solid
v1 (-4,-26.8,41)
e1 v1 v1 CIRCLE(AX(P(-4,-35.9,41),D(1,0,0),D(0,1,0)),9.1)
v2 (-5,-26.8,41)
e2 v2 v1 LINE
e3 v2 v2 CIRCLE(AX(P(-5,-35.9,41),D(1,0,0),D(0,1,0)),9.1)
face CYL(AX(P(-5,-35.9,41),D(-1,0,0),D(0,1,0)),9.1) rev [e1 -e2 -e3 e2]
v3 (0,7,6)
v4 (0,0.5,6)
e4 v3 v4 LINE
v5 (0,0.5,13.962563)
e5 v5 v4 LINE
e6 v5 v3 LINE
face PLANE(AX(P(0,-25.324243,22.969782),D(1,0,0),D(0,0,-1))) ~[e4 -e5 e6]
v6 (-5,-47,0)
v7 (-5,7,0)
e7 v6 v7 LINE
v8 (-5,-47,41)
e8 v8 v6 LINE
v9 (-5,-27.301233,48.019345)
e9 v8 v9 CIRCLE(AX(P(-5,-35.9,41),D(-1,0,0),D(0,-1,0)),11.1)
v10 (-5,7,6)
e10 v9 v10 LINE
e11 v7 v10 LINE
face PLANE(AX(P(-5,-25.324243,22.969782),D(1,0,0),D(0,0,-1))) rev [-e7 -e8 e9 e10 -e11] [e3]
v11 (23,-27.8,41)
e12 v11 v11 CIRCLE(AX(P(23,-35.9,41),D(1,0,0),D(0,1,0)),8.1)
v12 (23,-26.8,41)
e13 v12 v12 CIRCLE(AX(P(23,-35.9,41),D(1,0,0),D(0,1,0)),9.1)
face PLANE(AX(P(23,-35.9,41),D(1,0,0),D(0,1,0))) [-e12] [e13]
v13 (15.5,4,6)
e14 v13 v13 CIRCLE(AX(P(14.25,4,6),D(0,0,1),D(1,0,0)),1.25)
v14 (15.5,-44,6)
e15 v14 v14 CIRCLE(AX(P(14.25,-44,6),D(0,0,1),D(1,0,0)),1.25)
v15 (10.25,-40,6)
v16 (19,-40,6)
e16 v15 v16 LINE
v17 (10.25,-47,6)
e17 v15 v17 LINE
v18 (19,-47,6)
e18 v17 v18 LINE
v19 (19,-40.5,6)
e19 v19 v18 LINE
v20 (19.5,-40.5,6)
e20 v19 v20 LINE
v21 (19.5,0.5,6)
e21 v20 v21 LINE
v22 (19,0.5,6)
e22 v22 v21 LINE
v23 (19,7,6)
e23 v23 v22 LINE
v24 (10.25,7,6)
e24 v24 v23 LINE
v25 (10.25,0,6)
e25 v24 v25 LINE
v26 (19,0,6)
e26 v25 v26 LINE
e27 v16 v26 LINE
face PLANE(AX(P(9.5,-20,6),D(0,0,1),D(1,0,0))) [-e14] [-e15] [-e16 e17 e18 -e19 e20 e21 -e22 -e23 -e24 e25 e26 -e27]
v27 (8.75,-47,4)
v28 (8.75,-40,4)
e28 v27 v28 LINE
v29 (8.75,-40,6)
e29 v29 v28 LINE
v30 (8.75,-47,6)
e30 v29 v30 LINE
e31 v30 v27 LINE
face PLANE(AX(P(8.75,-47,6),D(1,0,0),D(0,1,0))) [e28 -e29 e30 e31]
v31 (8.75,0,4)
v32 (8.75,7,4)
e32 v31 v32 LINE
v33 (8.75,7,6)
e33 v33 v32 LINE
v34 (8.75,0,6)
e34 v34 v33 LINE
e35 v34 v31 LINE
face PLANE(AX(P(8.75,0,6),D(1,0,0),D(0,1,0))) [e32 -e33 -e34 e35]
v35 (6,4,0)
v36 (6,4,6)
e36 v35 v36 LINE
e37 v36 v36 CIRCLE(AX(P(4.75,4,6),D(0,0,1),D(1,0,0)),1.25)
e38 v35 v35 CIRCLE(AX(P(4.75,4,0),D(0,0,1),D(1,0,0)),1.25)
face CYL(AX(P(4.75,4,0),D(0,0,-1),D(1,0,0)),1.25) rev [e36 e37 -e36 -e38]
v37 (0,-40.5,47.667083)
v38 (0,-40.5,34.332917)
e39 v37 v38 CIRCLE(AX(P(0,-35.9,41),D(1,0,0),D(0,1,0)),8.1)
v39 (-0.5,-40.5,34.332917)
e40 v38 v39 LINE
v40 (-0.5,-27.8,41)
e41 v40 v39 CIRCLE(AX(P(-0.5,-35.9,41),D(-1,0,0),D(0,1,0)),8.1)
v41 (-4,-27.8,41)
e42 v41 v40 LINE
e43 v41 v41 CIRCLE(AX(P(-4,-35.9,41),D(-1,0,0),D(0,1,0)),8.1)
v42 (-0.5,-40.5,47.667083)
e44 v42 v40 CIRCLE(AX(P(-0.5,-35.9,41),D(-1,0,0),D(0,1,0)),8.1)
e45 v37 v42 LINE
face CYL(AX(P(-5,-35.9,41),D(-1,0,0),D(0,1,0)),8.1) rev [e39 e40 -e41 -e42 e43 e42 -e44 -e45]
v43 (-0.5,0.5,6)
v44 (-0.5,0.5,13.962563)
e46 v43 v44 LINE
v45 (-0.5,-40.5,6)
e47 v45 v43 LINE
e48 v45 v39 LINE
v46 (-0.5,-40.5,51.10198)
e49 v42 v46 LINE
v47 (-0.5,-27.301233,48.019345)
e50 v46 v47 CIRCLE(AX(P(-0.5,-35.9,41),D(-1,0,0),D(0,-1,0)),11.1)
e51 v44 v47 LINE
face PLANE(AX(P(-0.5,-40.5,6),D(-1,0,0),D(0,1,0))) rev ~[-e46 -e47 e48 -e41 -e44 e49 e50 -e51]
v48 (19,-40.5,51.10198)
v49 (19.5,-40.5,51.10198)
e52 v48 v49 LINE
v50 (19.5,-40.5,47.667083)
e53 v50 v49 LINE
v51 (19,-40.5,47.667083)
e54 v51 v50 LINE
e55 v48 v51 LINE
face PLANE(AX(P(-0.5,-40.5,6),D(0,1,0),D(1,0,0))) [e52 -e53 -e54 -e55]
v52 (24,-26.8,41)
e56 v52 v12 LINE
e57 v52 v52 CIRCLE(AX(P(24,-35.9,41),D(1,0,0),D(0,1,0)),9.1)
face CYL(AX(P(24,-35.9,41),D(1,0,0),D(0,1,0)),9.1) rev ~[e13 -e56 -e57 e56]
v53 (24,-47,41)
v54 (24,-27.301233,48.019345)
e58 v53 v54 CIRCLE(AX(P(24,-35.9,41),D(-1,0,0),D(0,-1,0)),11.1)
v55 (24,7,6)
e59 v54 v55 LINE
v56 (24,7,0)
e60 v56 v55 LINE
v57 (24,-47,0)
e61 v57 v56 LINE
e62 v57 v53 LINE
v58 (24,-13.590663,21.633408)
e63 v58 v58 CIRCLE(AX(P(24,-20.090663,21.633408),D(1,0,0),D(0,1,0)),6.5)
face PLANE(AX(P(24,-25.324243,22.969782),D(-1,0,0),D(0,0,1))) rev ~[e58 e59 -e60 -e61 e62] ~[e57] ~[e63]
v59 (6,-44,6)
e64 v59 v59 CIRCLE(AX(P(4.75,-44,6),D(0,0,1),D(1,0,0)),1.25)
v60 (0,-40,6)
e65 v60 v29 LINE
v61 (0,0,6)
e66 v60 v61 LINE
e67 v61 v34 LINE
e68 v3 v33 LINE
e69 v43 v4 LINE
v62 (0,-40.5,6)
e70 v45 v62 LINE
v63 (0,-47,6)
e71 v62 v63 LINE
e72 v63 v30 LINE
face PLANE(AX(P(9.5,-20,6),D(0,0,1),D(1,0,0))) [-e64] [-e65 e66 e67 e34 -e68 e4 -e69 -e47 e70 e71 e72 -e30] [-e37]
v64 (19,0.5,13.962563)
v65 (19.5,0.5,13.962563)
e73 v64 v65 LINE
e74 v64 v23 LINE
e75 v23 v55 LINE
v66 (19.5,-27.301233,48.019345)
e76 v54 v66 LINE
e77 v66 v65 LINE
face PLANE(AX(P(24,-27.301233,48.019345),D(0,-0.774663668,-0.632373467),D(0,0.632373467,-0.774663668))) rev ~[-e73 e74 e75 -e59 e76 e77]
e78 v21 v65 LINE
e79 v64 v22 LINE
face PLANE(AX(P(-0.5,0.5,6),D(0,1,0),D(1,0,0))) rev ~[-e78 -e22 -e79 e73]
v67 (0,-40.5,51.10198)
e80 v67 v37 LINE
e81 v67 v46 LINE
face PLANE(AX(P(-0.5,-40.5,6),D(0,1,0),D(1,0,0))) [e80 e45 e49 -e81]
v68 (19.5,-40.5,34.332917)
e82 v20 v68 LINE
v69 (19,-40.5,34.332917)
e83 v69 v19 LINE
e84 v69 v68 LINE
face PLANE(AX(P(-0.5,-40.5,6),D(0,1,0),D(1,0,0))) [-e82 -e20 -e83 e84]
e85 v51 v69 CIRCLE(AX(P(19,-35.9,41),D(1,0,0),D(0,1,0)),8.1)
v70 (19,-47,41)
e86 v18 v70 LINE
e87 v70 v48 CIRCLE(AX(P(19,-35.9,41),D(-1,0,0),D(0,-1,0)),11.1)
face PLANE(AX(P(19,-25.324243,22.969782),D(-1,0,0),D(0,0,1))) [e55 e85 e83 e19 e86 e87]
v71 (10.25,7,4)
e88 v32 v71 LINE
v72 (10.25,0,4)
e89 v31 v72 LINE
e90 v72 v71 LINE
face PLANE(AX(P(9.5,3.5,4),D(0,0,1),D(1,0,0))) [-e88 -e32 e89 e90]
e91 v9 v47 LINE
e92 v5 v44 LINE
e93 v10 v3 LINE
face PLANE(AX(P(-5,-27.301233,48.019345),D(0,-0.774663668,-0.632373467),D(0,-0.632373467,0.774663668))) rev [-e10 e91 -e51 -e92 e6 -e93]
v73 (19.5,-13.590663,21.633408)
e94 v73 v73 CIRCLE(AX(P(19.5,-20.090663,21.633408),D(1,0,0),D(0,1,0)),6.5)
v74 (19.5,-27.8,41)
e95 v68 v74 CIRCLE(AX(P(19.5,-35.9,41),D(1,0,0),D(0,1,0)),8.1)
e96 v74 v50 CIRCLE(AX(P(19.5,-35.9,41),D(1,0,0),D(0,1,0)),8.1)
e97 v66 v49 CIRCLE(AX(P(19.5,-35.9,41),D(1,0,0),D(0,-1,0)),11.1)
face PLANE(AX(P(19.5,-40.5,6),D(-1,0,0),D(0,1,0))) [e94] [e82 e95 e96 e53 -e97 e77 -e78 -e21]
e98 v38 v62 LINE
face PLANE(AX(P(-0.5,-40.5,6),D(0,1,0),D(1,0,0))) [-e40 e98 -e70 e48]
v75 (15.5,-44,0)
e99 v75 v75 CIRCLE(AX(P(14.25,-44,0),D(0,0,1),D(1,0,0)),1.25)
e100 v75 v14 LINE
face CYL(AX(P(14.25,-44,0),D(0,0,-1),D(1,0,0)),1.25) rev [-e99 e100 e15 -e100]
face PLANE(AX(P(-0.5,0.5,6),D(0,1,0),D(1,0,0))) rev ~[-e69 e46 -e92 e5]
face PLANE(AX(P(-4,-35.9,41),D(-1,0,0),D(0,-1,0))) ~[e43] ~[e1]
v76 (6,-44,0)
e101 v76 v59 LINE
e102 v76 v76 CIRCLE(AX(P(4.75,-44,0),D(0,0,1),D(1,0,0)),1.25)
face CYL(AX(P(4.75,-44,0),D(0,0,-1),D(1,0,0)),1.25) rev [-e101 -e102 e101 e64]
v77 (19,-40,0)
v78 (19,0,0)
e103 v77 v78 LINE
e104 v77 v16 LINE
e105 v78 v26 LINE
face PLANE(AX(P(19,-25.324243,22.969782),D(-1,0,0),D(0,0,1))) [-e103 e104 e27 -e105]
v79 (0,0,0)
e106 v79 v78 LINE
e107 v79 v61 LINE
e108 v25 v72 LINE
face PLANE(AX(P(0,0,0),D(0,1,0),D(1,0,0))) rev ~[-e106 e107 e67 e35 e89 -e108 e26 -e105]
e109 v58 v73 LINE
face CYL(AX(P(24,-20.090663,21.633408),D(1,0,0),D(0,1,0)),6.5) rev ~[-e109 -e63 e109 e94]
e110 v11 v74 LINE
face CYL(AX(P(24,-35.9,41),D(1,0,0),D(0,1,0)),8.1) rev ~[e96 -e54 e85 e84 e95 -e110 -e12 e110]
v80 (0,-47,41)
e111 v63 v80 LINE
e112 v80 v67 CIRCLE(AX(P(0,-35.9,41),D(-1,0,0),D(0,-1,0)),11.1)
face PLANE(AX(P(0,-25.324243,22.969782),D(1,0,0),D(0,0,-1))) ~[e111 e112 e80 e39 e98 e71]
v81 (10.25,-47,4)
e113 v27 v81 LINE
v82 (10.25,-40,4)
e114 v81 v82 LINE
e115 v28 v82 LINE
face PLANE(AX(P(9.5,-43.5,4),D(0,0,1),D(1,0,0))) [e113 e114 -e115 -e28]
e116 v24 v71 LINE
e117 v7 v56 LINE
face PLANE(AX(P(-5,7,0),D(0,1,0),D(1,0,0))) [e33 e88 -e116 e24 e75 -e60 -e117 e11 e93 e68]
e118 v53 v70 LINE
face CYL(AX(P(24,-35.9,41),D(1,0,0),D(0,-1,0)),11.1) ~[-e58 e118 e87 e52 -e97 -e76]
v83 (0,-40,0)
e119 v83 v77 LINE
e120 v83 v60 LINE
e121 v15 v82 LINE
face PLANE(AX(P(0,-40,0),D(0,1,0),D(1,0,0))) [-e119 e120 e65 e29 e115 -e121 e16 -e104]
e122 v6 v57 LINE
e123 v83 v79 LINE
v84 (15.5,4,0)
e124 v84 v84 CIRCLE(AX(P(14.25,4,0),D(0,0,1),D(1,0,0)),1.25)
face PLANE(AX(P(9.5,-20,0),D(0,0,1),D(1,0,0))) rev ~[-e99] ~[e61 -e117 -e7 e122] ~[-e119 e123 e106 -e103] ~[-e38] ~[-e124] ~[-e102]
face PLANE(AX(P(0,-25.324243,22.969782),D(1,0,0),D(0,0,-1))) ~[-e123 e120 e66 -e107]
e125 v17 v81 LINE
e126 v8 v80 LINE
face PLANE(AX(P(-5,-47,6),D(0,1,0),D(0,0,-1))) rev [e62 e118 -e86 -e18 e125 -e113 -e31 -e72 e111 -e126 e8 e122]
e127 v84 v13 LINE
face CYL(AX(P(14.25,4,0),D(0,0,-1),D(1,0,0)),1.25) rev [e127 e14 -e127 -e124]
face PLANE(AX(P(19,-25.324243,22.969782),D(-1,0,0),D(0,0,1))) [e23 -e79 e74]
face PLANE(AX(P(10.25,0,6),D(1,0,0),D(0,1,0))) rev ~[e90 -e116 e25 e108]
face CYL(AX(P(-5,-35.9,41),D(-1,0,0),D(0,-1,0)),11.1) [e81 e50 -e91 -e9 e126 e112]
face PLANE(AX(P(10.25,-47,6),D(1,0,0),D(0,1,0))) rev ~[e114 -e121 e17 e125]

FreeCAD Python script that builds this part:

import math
import FreeCAD as App
import Part
import Sketcher
from FreeCAD import Vector
Q = App.Units.Quantity


def add_polygon(sketch, points):
    """Adds a closed chain of lines whose ends are joined by coincident constraints."""
    first, n = sketch.GeometryCount, len(points)
    for a, b in zip(points, points[1:] + points[:1]):
        sketch.addGeometry(Part.LineSegment(App.Vector(*a, 0), App.Vector(*b, 0)), False)
    for i in range(n):
        sketch.addConstraint(Sketcher.Constraint("Coincident", first + i, 2, first + (i + 1) % n, 1))

doc = App.newDocument("Part")
body = doc.addObject("PartDesign::Body", "Body")

# Sketch on XY plane
sketch1 = doc.addObject("Sketcher::SketchObject", "Sketch")
body.addObject(sketch1)
sketch1.AttachmentSupport = (doc.XY_Plane, [""])
sketch1.MapMode = "FlatFace"
add_polygon(sketch1, [(-5, 7), (-5, -47), (24, -47), (24, 7)])  # lines 0-3
sketch1.addGeometry(Part.Circle(Vector(4.8, -44, 0), Vector(0, 0, 1), 1.2), False)  # 4
sketch1.addGeometry(Part.Circle(Vector(14.2, -44, 0), Vector(0, 0, 1), 1.2), False)  # 5
sketch1.addGeometry(Part.Circle(Vector(4.8, 4, 0), Vector(0, 0, 1), 1.2), False)  # 6
add_polygon(sketch1, [(19, -40), (0, -40), (0, 0), (19, 0)])  # lines 7-10
sketch1.addGeometry(Part.Circle(Vector(14.2, 4, 0), Vector(0, 0, 1), 1.2), False)  # 11
sketch1.addConstraint([
    Sketcher.Constraint("Vertical", 0),
    Sketcher.Constraint("Horizontal", 1),
    Sketcher.Constraint("Vertical", 2),
    Sketcher.Constraint("Horizontal", 3),
    Sketcher.Constraint("Horizontal", 7),
    Sketcher.Constraint("Vertical", 8),
    Sketcher.Constraint("Horizontal", 9),
    Sketcher.Constraint("Vertical", 10),
    Sketcher.Constraint("Coincident", 8, 2, -1, 1),
    Sketcher.Constraint("Equal", 4, 5),
    Sketcher.Constraint("Equal", 5, 6),
    Sketcher.Constraint("Equal", 6, 11),
    Sketcher.Constraint("Horizontal", 4, 3, 5, 3),
    Sketcher.Constraint("Horizontal", 6, 3, 11, 3),
    Sketcher.Constraint("Vertical", 4, 3, 6, 3),
    Sketcher.Constraint("Vertical", 5, 3, 11, 3),
    Sketcher.Constraint("Diameter", 4, Q("2.5 mm")),
    Sketcher.Constraint("DistanceX", 1, 1, 1, 2, Q("29 mm")),
    Sketcher.Constraint("DistanceX", 7, 2, 7, 1, Q("19 mm")),
    Sketcher.Constraint("DistanceY", 0, 2, 0, 1, Q("54 mm")),
    Sketcher.Constraint("DistanceY", 8, 1, 8, 2, Q("40 mm")),
    Sketcher.Constraint("DistanceY", 4, 3, -1, 1, Q("44 mm")),
    Sketcher.Constraint("DistanceY", -1, 1, 6, 3, Q("4 mm")),
    Sketcher.Constraint("DistanceX", 0, 2, -1, 1, Q("5 mm")),
    Sketcher.Constraint("DistanceY", 0, 2, -1, 1, Q("47 mm")),
    Sketcher.Constraint("DistanceX", 4, 3, 5, 3, Q("9.5 mm")),
    Sketcher.Constraint("DistanceX", -1, 1, 4, 3, Q("4.75 mm")),
])
pad1 = doc.addObject("PartDesign::Pad", "Pad")
body.addObject(pad1)
pad1.Profile = sketch1
pad1.Length = 6

# Sketch on XY plane
sketch2 = doc.addObject("Sketcher::SketchObject", "Sketch001")
body.addObject(sketch2)
sketch2.AttachmentSupport = (doc.XY_Plane, [""])
sketch2.MapMode = "FlatFace"
sketch2.AttachmentOffset = App.Placement(Vector(0, 0, 6), App.Rotation())
add_polygon(sketch2, [(8.8, -40), (8.8, -47), (10.2, -47), (10.2, -40)])  # lines 0-3
add_polygon(sketch2, [(8.8, 7), (8.8, 0), (10.2, 0), (10.2, 7)])  # lines 4-7
sketch2.addConstraint([
    Sketcher.Constraint("Vertical", 0),
    Sketcher.Constraint("Horizontal", 1),
    Sketcher.Constraint("Vertical", 2),
    Sketcher.Constraint("Horizontal", 3),
    Sketcher.Constraint("Vertical", 4),
    Sketcher.Constraint("Horizontal", 5),
    Sketcher.Constraint("Vertical", 6),
    Sketcher.Constraint("Horizontal", 7),
    Sketcher.Constraint("PointOnObject", 4, 2, -1),
    Sketcher.Constraint("Vertical", 3, 2, 4, 2),
    Sketcher.Constraint("Vertical", 2, 2, 5, 2),
    Sketcher.Constraint("Equal", 2, 4),
    Sketcher.Constraint("DistanceY", 0, 2, 0, 1, Q("7 mm")),
    Sketcher.Constraint("DistanceX", 1, 1, 1, 2, Q("1.5 mm")),
    Sketcher.Constraint("DistanceY", 0, 2, -1, 1, Q("47 mm")),
    Sketcher.Constraint("DistanceX", -1, 1, 0, 2, Q("8.75 mm")),
])
pocket1 = doc.addObject("PartDesign::Pocket", "Pocket")
body.addObject(pocket1)
pocket1.Profile = sketch2
pocket1.Length = 2

# Sketch on YZ plane
sketch3 = doc.addObject("Sketcher::SketchObject", "Sketch002")
body.addObject(sketch3)
sketch3.AttachmentSupport = (doc.YZ_Plane, [""])
sketch3.MapMode = "FlatFace"
sketch3.AttachmentOffset = App.Placement(Vector(0, 0, 24), App.Rotation())
sketch3.addGeometry([
    Part.LineSegment(Vector(-47, 41, 0), Vector(-47, 6, 0)),  # 0
    Part.LineSegment(Vector(-47, 6, 0), Vector(7, 6, 0)),  # 1
    Part.LineSegment(Vector(7, 6, 0), Vector(-27, 48, 0)),  # 2
    Part.ArcOfCircle(Part.Circle(Vector(-36, 41, 0), Vector(0, 0, 1), 11), math.radians(39), math.radians(180)),  # 3
    Part.Circle(Vector(-36, 41, 0), Vector(0, 0, 1), 8),  # 4
], False)
sketch3.addConstraint([
    Sketcher.Constraint("Coincident", 0, 2, 1, 1),
    Sketcher.Constraint("Coincident", 1, 2, 2, 1),
    Sketcher.Constraint("Tangent", 2, 2, 3, 1),
    Sketcher.Constraint("Tangent", 3, 2, 0, 1),
    Sketcher.Constraint("Vertical", 0),
    Sketcher.Constraint("Horizontal", 1),
    Sketcher.Constraint("Coincident", 4, 3, 3, 3),
    Sketcher.Constraint("Diameter", 4, Q("16.2 mm")),
    Sketcher.Constraint("Radius", 3, Q("11.1 mm")),
    Sketcher.Constraint("DistanceX", 1, 1, 1, 2, Q("54 mm")),
    Sketcher.Constraint("DistanceY", 0, 2, 0, 1, Q("35 mm")),
    Sketcher.Constraint("DistanceY", -1, 1, 3, 3, Q("41 mm")),
    Sketcher.Constraint("DistanceX", 0, 2, -1, 1, Q("47 mm")),
])
pad2 = doc.addObject("PartDesign::Pad", "Pad001")
body.addObject(pad2)
pad2.Profile = sketch3
pad2.Length = 5
pad2.Reversed = True

# Sketch on YZ plane
sketch4 = doc.addObject("Sketcher::SketchObject", "Sketch003")
body.addObject(sketch4)
sketch4.AttachmentSupport = (doc.YZ_Plane, [""])
sketch4.MapMode = "FlatFace"
sketch4.AttachmentOffset = App.Placement(Vector(0, 0, 24), App.Rotation())
sketch4.addGeometry(Part.Circle(Vector(-36, 41, 0), Vector(0, 0, 1), 9), False)
sketch4.addConstraint([
    Sketcher.Constraint("Diameter", 0, Q("18.2 mm")),
    Sketcher.Constraint("DistanceY", -1, 1, 0, 3, Q("41 mm")),
    Sketcher.Constraint("DistanceX", 0, 3, -1, 1, Q("35.9 mm")),
])
pocket2 = doc.addObject("PartDesign::Pocket", "Pocket001")
body.addObject(pocket2)
pocket2.Profile = sketch4
pocket2.Length = 1
doc.recompute()

datumplane = doc.addObject("PartDesign::Plane", "DatumPlane")
body.addObject(datumplane)
datumplane.AttachmentSupport = (doc.YZ_Plane, [""])
datumplane.MapMode = "FlatFace"
datumplane.AttachmentOffset = App.Placement(Vector(0, 0, 9.5), App.Rotation())
mirrored = doc.addObject("PartDesign::Mirrored", "Mirrored")
body.addObject(mirrored)
mirrored.Originals = [pad2, pocket2]
mirrored.MirrorPlane = (datumplane, [""])
body.Tip = mirrored

# Sketch on XY plane
sketch5 = doc.addObject("Sketcher::SketchObject", "Sketch004")
body.addObject(sketch5)
sketch5.AttachmentSupport = (doc.XY_Plane, [""])
sketch5.MapMode = "FlatFace"
sketch5.AttachmentOffset = App.Placement(Vector(0, 0, 6), App.Rotation())
add_polygon(sketch5, [(0, 0), (0, -40), (20, -40), (20, 0)])  # lines 0-3
sketch5.addConstraint([
    Sketcher.Constraint("Vertical", 0),
    Sketcher.Constraint("Horizontal", 1),
    Sketcher.Constraint("Vertical", 2),
    Sketcher.Constraint("Horizontal", 3),
    Sketcher.Constraint("DistanceX", 1, 1, 1, 2, Q("20 mm")),
    Sketcher.Constraint("DistanceY", 0, 2, 0, 1, Q("41 mm")),
    Sketcher.Constraint("DistanceX", 0, 2, -1, 1, Q("0.5 mm")),
    Sketcher.Constraint("DistanceY", 0, 2, -1, 1, Q("40.5 mm")),
])
pocket3 = doc.addObject("PartDesign::Pocket", "Pocket002")
body.addObject(pocket3)
pocket3.Profile = sketch5
pocket3.Type = "ThroughAll"
pocket3.Reversed = True

# Sketch on YZ plane
sketch6 = doc.addObject("Sketcher::SketchObject", "Sketch005")
body.addObject(sketch6)
sketch6.AttachmentSupport = (doc.YZ_Plane, [""])
sketch6.MapMode = "FlatFace"
sketch6.AttachmentOffset = App.Placement(Vector(0, 0, 24), App.Rotation())
sketch6.addGeometry(Part.Circle(Vector(-20, 22, 0), Vector(0, 0, 1), 6), False)
sketch6.addConstraint([
    Sketcher.Constraint("Diameter", 0, Q("13 mm")),
    Sketcher.Constraint("DistanceY", -1, 1, 0, 3, Q("21.633408 mm")),
    Sketcher.Constraint("DistanceX", 0, 3, -1, 1, Q("20.090663 mm")),
])
pocket4 = doc.addObject("PartDesign::Pocket", "Pocket003")
body.addObject(pocket4)
pocket4.Profile = sketch6
pocket4.Length = 5

doc.recompute()
